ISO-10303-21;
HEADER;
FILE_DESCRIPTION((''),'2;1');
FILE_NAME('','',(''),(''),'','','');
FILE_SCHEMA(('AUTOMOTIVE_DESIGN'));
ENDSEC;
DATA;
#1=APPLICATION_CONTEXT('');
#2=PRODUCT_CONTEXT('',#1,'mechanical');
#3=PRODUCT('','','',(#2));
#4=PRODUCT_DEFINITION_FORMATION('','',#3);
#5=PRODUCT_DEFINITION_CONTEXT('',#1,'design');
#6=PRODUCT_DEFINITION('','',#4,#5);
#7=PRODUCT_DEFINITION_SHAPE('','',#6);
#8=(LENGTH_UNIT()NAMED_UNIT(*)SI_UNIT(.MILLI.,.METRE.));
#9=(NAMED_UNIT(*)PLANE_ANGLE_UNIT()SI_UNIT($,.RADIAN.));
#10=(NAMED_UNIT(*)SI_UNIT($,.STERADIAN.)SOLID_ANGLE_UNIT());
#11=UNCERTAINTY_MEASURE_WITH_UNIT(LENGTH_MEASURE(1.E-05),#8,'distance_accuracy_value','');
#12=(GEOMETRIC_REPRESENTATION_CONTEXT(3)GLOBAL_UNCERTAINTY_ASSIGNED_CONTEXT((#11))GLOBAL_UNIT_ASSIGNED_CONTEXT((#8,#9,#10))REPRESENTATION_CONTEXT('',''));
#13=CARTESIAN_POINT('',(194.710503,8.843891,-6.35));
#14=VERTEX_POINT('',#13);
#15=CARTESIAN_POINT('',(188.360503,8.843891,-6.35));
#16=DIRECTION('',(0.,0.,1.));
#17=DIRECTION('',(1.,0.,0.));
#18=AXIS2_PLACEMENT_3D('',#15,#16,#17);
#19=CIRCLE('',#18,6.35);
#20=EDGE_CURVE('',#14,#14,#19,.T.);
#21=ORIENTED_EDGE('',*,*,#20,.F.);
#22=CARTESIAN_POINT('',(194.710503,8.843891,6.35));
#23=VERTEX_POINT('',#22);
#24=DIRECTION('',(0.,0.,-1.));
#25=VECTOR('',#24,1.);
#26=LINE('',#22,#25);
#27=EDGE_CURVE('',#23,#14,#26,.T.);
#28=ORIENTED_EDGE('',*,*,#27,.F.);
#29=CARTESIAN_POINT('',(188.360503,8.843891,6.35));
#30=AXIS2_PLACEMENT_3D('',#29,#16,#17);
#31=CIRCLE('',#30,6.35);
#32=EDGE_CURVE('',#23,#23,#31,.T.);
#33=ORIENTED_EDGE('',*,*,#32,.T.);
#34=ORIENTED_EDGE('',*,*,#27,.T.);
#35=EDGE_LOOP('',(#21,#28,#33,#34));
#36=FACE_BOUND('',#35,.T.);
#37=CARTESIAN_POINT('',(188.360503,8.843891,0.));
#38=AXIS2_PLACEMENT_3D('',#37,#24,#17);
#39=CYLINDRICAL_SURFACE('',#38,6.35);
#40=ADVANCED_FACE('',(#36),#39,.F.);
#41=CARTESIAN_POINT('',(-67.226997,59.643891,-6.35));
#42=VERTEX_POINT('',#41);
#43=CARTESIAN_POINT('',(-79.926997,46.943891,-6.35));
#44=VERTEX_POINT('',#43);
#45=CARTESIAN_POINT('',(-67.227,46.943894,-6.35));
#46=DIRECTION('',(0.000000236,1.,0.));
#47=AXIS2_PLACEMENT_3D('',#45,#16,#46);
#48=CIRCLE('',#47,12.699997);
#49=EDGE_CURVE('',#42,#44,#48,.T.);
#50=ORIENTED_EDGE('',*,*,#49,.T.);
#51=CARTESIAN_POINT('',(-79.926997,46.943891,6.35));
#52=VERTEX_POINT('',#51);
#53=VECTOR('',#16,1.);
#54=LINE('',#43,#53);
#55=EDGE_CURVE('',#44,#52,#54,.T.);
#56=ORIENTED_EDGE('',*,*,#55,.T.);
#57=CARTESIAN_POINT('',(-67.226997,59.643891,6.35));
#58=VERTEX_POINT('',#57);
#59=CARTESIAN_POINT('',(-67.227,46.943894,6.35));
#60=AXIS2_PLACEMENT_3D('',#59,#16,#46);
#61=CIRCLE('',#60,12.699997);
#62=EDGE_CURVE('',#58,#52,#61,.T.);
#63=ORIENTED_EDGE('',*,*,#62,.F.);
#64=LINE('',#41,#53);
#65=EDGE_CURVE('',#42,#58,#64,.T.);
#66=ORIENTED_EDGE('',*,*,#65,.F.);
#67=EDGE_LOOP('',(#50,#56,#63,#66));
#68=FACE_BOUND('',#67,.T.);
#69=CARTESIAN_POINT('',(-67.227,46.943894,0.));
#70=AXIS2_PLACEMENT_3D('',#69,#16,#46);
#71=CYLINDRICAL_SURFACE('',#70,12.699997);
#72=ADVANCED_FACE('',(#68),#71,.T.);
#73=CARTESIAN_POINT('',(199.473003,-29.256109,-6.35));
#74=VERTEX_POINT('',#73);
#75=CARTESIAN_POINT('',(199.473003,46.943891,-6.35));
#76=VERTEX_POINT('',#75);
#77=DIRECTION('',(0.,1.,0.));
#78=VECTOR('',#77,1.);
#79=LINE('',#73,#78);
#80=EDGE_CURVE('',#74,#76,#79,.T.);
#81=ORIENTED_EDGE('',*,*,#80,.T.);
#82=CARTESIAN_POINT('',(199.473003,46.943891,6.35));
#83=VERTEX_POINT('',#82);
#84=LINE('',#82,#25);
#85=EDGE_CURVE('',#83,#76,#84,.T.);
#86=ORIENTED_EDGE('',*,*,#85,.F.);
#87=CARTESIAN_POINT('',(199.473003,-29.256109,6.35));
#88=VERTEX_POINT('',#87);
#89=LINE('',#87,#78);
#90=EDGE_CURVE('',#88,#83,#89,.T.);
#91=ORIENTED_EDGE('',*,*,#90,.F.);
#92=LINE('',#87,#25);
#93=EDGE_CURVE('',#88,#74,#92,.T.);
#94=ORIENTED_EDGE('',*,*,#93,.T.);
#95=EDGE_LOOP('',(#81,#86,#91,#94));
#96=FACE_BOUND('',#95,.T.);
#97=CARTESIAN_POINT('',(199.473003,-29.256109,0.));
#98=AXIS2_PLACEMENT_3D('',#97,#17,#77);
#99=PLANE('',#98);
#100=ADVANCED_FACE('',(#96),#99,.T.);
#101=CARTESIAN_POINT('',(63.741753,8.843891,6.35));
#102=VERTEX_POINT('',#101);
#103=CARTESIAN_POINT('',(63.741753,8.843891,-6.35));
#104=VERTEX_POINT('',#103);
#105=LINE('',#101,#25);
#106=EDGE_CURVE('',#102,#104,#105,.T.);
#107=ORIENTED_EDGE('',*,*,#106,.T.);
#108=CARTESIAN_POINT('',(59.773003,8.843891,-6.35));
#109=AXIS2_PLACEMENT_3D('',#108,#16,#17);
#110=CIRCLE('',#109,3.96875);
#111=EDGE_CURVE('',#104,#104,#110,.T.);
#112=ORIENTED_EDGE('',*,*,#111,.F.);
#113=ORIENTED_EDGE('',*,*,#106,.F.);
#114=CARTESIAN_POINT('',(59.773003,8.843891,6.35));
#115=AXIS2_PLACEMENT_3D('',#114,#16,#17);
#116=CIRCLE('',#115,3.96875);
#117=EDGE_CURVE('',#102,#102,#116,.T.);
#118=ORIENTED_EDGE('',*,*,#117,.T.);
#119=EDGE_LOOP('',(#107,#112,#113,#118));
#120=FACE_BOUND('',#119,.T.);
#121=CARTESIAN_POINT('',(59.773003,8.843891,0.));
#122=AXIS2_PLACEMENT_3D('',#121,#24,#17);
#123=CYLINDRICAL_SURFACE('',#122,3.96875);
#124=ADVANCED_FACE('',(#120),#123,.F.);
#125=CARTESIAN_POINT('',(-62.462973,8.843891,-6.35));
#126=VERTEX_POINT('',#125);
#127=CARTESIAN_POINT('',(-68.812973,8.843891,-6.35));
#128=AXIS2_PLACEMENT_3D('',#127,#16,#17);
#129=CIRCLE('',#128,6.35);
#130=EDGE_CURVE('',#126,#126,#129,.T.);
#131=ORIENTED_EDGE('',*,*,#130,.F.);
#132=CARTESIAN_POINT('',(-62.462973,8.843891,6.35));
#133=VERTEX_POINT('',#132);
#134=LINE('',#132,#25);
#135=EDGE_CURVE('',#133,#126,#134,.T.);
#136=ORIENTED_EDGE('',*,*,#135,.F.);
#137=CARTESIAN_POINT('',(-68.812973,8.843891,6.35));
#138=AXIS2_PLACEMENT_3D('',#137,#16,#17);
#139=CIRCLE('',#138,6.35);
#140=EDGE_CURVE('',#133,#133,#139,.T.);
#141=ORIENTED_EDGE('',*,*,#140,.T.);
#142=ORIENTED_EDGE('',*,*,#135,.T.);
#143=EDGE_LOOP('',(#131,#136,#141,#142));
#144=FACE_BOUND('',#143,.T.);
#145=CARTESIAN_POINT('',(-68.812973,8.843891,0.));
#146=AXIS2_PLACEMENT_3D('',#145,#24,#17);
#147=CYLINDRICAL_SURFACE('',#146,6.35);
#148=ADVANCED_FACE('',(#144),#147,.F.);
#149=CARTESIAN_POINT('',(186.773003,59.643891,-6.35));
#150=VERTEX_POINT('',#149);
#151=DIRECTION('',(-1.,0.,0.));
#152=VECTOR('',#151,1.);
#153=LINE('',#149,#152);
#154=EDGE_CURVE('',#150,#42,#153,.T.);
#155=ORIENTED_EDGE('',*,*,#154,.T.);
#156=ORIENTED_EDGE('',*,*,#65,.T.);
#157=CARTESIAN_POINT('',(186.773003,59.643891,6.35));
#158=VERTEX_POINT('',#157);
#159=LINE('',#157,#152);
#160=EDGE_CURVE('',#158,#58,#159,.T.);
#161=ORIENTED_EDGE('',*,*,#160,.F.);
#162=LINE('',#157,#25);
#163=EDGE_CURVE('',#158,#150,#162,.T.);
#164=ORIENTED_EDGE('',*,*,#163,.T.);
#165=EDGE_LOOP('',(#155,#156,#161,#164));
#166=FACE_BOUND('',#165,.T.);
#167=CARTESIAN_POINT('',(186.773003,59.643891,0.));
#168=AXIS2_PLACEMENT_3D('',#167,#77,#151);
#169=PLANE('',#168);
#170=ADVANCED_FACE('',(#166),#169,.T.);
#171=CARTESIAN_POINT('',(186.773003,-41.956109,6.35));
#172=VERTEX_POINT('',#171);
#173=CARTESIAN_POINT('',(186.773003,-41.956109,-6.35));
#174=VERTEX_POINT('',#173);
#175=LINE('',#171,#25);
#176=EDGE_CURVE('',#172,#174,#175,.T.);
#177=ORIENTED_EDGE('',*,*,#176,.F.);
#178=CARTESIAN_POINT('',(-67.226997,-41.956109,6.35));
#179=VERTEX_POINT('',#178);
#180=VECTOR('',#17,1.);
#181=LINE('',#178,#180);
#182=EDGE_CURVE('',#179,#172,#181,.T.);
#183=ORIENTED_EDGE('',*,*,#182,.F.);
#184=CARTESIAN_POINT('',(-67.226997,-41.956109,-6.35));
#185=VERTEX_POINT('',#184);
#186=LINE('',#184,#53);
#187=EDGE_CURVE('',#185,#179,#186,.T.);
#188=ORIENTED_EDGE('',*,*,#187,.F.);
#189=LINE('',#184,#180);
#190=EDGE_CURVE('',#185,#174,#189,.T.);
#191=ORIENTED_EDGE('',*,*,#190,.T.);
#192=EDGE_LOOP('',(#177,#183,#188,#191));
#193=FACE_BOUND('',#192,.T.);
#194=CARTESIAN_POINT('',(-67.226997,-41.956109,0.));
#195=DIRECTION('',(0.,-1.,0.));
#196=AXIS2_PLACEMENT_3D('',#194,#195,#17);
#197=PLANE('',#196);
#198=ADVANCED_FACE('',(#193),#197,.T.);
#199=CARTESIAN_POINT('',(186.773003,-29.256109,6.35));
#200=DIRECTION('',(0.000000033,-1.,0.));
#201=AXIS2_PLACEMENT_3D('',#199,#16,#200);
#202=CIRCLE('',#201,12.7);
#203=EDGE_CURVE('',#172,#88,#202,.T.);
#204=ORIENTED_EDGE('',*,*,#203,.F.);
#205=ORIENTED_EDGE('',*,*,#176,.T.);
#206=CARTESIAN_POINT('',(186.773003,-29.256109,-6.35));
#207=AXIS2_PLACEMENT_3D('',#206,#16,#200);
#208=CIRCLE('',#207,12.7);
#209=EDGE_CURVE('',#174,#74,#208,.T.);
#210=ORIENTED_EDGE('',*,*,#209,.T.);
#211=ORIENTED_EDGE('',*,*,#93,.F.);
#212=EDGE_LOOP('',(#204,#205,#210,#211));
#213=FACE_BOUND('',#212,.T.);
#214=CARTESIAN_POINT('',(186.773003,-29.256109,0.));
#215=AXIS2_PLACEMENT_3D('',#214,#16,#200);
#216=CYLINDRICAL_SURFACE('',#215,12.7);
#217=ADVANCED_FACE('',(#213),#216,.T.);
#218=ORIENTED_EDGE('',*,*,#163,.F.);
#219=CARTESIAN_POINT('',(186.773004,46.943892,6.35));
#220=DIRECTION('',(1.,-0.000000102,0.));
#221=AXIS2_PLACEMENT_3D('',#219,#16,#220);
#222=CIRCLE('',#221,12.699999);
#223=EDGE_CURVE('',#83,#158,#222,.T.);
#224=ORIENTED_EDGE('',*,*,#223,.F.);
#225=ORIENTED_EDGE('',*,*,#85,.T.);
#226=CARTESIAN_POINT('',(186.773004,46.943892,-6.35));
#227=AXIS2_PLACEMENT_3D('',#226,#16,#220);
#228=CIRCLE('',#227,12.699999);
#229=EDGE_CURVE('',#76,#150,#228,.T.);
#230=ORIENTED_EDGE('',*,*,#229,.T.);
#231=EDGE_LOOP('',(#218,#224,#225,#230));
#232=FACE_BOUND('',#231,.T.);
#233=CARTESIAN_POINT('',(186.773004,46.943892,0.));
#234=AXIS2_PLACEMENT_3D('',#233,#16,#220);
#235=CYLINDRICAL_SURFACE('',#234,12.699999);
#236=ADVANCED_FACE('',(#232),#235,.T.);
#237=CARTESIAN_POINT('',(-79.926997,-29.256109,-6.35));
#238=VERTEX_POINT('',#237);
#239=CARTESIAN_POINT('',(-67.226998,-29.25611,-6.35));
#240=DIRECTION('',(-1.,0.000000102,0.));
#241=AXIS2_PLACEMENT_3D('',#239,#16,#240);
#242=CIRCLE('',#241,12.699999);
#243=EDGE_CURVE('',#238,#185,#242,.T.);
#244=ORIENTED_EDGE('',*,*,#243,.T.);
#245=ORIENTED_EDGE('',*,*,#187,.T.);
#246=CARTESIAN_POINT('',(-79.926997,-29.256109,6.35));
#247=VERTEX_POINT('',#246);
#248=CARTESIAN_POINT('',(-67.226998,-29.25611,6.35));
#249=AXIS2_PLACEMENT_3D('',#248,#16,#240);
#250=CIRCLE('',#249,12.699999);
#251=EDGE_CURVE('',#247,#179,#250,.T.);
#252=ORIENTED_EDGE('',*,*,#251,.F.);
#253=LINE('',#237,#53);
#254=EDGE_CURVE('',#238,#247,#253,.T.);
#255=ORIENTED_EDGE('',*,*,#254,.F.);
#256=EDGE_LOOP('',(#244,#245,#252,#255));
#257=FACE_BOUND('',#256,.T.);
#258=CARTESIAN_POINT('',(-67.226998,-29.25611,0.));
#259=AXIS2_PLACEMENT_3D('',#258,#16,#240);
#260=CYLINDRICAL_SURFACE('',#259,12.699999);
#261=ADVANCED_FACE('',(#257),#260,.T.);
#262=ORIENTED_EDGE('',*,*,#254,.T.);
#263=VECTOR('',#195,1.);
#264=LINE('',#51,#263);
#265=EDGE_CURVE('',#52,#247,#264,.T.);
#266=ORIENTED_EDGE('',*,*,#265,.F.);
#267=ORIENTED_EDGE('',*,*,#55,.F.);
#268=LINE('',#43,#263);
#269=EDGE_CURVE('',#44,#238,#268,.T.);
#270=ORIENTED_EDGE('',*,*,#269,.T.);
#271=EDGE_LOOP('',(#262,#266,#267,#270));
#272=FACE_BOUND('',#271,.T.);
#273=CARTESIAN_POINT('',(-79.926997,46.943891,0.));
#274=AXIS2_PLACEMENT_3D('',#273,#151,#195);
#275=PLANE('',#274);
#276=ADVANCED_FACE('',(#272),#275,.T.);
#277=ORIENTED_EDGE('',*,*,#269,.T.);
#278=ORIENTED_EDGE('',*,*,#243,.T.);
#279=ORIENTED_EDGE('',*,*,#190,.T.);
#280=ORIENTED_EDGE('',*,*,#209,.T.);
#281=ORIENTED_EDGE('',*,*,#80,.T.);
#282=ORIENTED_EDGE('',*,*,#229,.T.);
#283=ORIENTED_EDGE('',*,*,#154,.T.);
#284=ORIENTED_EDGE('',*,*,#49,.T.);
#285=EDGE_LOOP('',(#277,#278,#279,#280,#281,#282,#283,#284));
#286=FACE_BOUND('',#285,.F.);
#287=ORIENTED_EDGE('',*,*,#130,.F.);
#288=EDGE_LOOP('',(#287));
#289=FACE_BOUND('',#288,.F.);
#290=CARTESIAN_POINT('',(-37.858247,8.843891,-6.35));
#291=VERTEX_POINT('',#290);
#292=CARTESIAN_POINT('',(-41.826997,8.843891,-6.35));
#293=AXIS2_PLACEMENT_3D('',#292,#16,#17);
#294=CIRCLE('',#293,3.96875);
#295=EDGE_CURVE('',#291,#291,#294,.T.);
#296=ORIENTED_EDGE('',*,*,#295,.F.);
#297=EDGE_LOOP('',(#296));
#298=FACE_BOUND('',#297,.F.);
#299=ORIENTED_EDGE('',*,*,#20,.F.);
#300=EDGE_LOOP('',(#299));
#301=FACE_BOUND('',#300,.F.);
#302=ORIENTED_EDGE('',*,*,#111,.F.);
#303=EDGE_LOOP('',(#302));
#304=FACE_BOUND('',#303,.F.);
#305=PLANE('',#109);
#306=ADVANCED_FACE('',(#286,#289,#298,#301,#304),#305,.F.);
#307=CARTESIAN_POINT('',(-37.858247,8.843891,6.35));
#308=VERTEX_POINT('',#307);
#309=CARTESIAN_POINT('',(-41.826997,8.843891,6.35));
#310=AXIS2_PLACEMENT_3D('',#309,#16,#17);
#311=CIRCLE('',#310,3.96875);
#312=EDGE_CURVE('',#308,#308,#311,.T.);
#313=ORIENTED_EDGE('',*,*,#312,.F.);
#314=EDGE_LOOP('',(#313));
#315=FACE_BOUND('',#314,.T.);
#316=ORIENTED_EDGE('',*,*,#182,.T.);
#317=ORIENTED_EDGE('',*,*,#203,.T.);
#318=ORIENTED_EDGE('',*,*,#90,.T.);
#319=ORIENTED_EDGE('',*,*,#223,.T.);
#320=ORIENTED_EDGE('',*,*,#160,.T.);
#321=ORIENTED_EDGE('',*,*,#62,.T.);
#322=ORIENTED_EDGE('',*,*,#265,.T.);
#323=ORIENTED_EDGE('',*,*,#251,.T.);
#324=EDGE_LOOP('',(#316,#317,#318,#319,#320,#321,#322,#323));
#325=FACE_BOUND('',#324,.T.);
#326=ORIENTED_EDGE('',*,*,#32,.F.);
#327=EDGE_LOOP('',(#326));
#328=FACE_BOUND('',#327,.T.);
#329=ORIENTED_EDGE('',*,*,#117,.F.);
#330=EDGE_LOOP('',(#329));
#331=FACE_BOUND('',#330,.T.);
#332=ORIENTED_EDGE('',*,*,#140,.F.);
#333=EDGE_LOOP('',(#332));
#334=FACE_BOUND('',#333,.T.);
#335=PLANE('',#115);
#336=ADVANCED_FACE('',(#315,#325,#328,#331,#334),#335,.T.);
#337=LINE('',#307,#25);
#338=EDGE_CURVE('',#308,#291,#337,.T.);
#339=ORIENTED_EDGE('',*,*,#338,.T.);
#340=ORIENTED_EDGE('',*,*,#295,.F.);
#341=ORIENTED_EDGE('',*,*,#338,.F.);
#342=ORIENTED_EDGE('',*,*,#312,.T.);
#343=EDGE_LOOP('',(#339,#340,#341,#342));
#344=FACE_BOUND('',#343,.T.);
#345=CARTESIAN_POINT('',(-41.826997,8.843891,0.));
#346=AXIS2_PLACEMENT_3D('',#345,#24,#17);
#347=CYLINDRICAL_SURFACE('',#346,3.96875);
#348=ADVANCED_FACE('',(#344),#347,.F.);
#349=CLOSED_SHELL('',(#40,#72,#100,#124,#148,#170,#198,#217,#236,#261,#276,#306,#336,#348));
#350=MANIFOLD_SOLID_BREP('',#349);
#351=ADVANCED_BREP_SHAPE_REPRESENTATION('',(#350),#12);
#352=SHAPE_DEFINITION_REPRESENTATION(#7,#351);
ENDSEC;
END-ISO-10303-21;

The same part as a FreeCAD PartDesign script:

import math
import FreeCAD as App
import Part
import Sketcher
from FreeCAD import Vector
Q = App.Units.Quantity

doc = App.newDocument("Part")
body = doc.addObject("PartDesign::Body", "Body")

# Sketch on XY plane
sketch1 = body.newObject("Sketcher::SketchObject", "Sketch")
sketch1.AttachmentSupport = (doc.getObject("XY_Plane"), [""])
sketch1.MapMode = "FlatFace"
sketch1.addGeometry(Part.LineSegment(Vector(186.8, 59.6, 0), Vector(-67.2, 59.6, 0)), False)
sketch1.addGeometry(Part.ArcOfCircle(Part.Circle(Vector(-67.2, 46.9, 0), Vector(0, 0, 1), 12.7), math.radians(90), math.radians(180)), False)
sketch1.addGeometry(Part.LineSegment(Vector(-79.9, 46.9, 0), Vector(-79.9, -29.3, 0)), False)
sketch1.addGeometry(Part.ArcOfCircle(Part.Circle(Vector(-67.2, -29.3, 0), Vector(0, 0, 1), 12.7), math.radians(180), math.radians(270)), False)
sketch1.addGeometry(Part.LineSegment(Vector(-67.2, -42, 0), Vector(186.8, -42, 0)), False)
sketch1.addGeometry(Part.ArcOfCircle(Part.Circle(Vector(186.8, -29.3, 0), Vector(0, 0, 1), 12.7), math.radians(-90), math.radians(0)), False)
sketch1.addGeometry(Part.LineSegment(Vector(199.5, -29.3, 0), Vector(199.5, 46.9, 0)), False)
sketch1.addGeometry(Part.ArcOfCircle(Part.Circle(Vector(186.8, 46.9, 0), Vector(0, 0, 1), 12.7), math.radians(0), math.radians(90)), False)
sketch1.addGeometry(Part.Circle(Vector(-68.8, 8.8, 0), Vector(0, 0, 1), 6.3), False)
sketch1.addGeometry(Part.Circle(Vector(-41.8, 8.8, 0), Vector(0, 0, 1), 4), False)
sketch1.addGeometry(Part.Circle(Vector(59.8, 8.8, 0), Vector(0, 0, 1), 4), False)
sketch1.addGeometry(Part.Circle(Vector(188.4, 8.8, 0), Vector(0, 0, 1), 6.3), False)
sketch1.addConstraint(Sketcher.Constraint("Tangent", 0, 2, 1, 1))
sketch1.addConstraint(Sketcher.Constraint("Tangent", 1, 2, 2, 1))
sketch1.addConstraint(Sketcher.Constraint("Tangent", 2, 2, 3, 1))
sketch1.addConstraint(Sketcher.Constraint("Tangent", 3, 2, 4, 1))
sketch1.addConstraint(Sketcher.Constraint("Tangent", 4, 2, 5, 1))
sketch1.addConstraint(Sketcher.Constraint("Tangent", 5, 2, 6, 1))
sketch1.addConstraint(Sketcher.Constraint("Tangent", 6, 2, 7, 1))
sketch1.addConstraint(Sketcher.Constraint("Tangent", 7, 2, 0, 1))
sketch1.addConstraint(Sketcher.Constraint("Horizontal", 0))
sketch1.addConstraint(Sketcher.Constraint("Vertical", 2))
sketch1.addConstraint(Sketcher.Constraint("Horizontal", 4))
sketch1.addConstraint(Sketcher.Constraint("Vertical", 6))
sketch1.addConstraint(Sketcher.Constraint("Equal", 1, 3))
sketch1.addConstraint(Sketcher.Constraint("Equal", 3, 5))
sketch1.addConstraint(Sketcher.Constraint("Equal", 5, 7))
sketch1.addConstraint(Sketcher.Constraint("Equal", 9, 10))
sketch1.addConstraint(Sketcher.Constraint("Equal", 8, 11))
sketch1.addConstraint(Sketcher.Constraint("Horizontal", 8, 3, 9, 3))
sketch1.addConstraint(Sketcher.Constraint("Horizontal", 9, 3, 10, 3))
sketch1.addConstraint(Sketcher.Constraint("Horizontal", 10, 3, 11, 3))
sketch1.addConstraint(Sketcher.Constraint("Diameter", 8, Q("0.5 in")))
sketch1.addConstraint(Sketcher.Constraint("Radius", 1, Q("0.4999999 in")))
sketch1.addConstraint(Sketcher.Constraint("DistanceX", 0, 2, 0, 1, Q("10 in")))
sketch1.addConstraint(Sketcher.Constraint("DistanceY", 2, 2, 2, 1, Q("3 in")))
sketch1.addConstraint(Sketcher.Constraint("Diameter", 9, Q("0.3125 in")))
sketch1.addConstraint(Sketcher.Constraint("DistanceX", 3, 3, 9, 3, Q("1.0000001 in")))
sketch1.addConstraint(Sketcher.Constraint("DistanceX", 9, 3, 10, 3, Q("4 in")))
sketch1.addConstraint(Sketcher.Constraint("DistanceY", 8, 3, 0, 2, Q("2 in")))
sketch1.addConstraint(Sketcher.Constraint("DistanceX", 5, 3, 11, 3, Q("0.0625 in")))
sketch1.addConstraint(Sketcher.Constraint("DistanceX", 1, 3, -1, 1, 67.227))
sketch1.addConstraint(Sketcher.Constraint("DistanceY", 3, 3, -1, 1, 29.25611))
sketch1.addConstraint(Sketcher.Constraint("DistanceX", 8, 3, -1, 1, 68.812973))
pad1 = body.newObject("PartDesign::Pad", "Pad")
pad1.Profile = sketch1
pad1.Length = Q("0.5 in")
pad1.Midplane = True

doc.recompute()
